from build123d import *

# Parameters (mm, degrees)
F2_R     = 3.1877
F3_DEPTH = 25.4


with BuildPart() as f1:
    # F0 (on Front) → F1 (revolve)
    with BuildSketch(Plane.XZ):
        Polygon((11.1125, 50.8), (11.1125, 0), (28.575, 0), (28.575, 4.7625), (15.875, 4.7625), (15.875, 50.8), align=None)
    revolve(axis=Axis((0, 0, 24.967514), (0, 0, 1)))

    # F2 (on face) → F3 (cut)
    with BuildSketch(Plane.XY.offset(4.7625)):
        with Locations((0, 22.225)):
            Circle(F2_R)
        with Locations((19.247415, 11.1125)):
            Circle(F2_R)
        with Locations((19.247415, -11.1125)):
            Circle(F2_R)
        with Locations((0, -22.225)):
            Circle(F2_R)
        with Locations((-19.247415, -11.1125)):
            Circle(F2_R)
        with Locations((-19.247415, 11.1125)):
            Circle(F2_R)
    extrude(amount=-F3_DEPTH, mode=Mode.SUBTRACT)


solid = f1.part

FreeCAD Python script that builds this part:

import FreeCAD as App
import Part
import Sketcher
Q = App.Units.Quantity


def add_polygon(sketch, points):
    """Adds a closed chain of lines whose ends are joined by coincident constraints."""
    first, n = sketch.GeometryCount, len(points)
    for a, b in zip(points, points[1:] + points[:1]):
        sketch.addGeometry(Part.LineSegment(App.Vector(*a, 0), App.Vector(*b, 0)), False)
    for i in range(n):
        sketch.addConstraint(Sketcher.Constraint("Coincident", first + i, 2, first + (i + 1) % n, 1))

doc = App.newDocument("Part")
body = doc.addObject("PartDesign::Body", "Body")

# Sketch on XZ plane
sketch1 = body.newObject("Sketcher::SketchObject", "Sketch")
sketch1.AttachmentSupport = (doc.getObject("XZ_Plane"), [""])
sketch1.MapMode = "FlatFace"
add_polygon(sketch1, [(11.1, 50.8), (11.1, 0), (28.6, 0), (28.6, 4.8), (15.9, 4.8), (15.9, 50.8)])  # lines 0-5
sketch1.addConstraint([
    Sketcher.Constraint("Vertical", 0),
    Sketcher.Constraint("Horizontal", 1),
    Sketcher.Constraint("Vertical", 2),
    Sketcher.Constraint("Horizontal", 3),
    Sketcher.Constraint("Vertical", 4),
    Sketcher.Constraint("Horizontal", 5),
    Sketcher.Constraint("PointOnObject", 0, 2, -1),
    Sketcher.Constraint("Equal", 5, 2),
    Sketcher.Constraint("DistanceY", 0, 2, 0, 1, Q("2 in")),
    Sketcher.Constraint("DistanceX", 3, 2, 3, 1, Q("0.5 in")),
    Sketcher.Constraint("DistanceX", 1, 1, 1, 2, Q("0.6875 in")),
    Sketcher.Constraint("DistanceX", -1, 1, 0, 2, Q("0.4375 in")),
])
revolution = body.newObject("PartDesign::Revolution", "Revolution")
revolution.Profile = sketch1
revolution.ReferenceAxis = (sketch1, ["V_Axis"])
revolution.Angle = 360

# Sketch on XY plane
sketch2 = body.newObject("Sketcher::SketchObject", "Sketch001")
sketch2.AttachmentSupport = (doc.getObject("XY_Plane"), [""])
sketch2.MapMode = "FlatFace"
sketch2.AttachmentOffset = App.Placement(App.Vector(0, 0, 0.1875 * 25.4), App.Rotation())
sketch2.addGeometry([
    Part.Circle(App.Vector(0, 22.2, 0), App.Vector(0, 0, 1), 3.2),  # 0
    Part.Circle(App.Vector(19.2, 11.1, 0), App.Vector(0, 0, 1), 3.2),  # 1
    Part.Circle(App.Vector(19.2, -11.1, 0), App.Vector(0, 0, 1), 3.2),  # 2
    Part.Circle(App.Vector(0, -22.2, 0), App.Vector(0, 0, 1), 3.2),  # 3
    Part.Circle(App.Vector(-19.2, -11.1, 0), App.Vector(0, 0, 1), 3.2),  # 4
    Part.Circle(App.Vector(-19.2, 11.1, 0), App.Vector(0, 0, 1), 3.2),  # 5
], False)
sketch2.addConstraint([
    Sketcher.Constraint("Equal", 0, 1),
    Sketcher.Constraint("Equal", 1, 2),
    Sketcher.Constraint("Equal", 2, 3),
    Sketcher.Constraint("Equal", 3, 4),
    Sketcher.Constraint("Equal", 4, 5),
    Sketcher.Constraint("Symmetric", 0, 3, 3, 3, -1, 1),
    Sketcher.Constraint("Symmetric", 1, 3, 4, 3, -1, 1),
    Sketcher.Constraint("Symmetric", 2, 3, 5, 3, -1, 1),
    Sketcher.Constraint("Symmetric", 2, 3, 4, 3, -2),
    Sketcher.Constraint("PointOnObject", 0, 3, -2),
    Sketcher.Constraint("Diameter", 0, Q("0.251 in")),
    Sketcher.Constraint("DistanceY", 3, 3, 0, 3, Q("1.75 in")),
    Sketcher.Constraint("DistanceY", -1, 1, 1, 3, Q("0.4375 in")),
    Sketcher.Constraint("DistanceX", 4, 3, 2, 3, Q("38.49483 mm")),
])
pocket1 = body.newObject("PartDesign::Pocket", "Pocket")
pocket1.Profile = sketch2
pocket1.Length = Q("1 in")

doc.recompute()
